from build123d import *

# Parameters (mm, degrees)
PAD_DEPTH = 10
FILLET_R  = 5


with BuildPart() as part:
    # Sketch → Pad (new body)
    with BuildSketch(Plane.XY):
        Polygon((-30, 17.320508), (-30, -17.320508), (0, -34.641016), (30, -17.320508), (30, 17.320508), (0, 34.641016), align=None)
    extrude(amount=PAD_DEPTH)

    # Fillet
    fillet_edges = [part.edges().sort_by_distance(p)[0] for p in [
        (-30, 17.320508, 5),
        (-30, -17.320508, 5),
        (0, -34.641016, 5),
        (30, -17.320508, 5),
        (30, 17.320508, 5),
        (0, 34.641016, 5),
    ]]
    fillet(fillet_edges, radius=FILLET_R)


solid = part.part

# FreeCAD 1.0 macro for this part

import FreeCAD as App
import Part
import Sketcher

V = App.Vector
Q = App.Units.Quantity


def edges_at(feature, points):
    """Names of the edges that pass closest to the given points."""
    edges = feature.Shape.Edges
    near = lambda p: min(range(len(edges)), key=lambda i: edges[i].distToShape(Part.Vertex(*p))[0])
    return sorted({f"Edge{near(p) + 1}" for p in points})

doc = App.newDocument("Part")
body = doc.addObject("PartDesign::Body", "Body")

# Sketch on XY plane
sketch1 = body.newObject("Sketcher::SketchObject", "Sketch")
sketch1.AttachmentSupport = (doc.getObject("XY_Plane"), [""])
sketch1.MapMode = "FlatFace"
sketch1.addGeometry(Part.LineSegment(V(-30, 17, 0), V(-30, -17, 0)), False)
sketch1.addGeometry(Part.LineSegment(V(-30, -17, 0), V(0, -35, 0)), False)
sketch1.addGeometry(Part.LineSegment(V(0, -35, 0), V(30, -17, 0)), False)
sketch1.addGeometry(Part.LineSegment(V(30, -17, 0), V(30, 17, 0)), False)
sketch1.addGeometry(Part.LineSegment(V(30, 17, 0), V(0, 35, 0)), False)
sketch1.addGeometry(Part.LineSegment(V(0, 35, 0), V(-30, 17, 0)), False)
sketch1.addConstraint(Sketcher.Constraint("Coincident", 0, 2, 1, 1))
sketch1.addConstraint(Sketcher.Constraint("Coincident", 1, 2, 2, 1))
sketch1.addConstraint(Sketcher.Constraint("Coincident", 2, 2, 3, 1))
sketch1.addConstraint(Sketcher.Constraint("Coincident", 3, 2, 4, 1))
sketch1.addConstraint(Sketcher.Constraint("Coincident", 4, 2, 5, 1))
sketch1.addConstraint(Sketcher.Constraint("Coincident", 5, 2, 0, 1))
sketch1.addConstraint(Sketcher.Constraint("Vertical", 0))
sketch1.addConstraint(Sketcher.Constraint("Vertical", 3))
sketch1.addConstraint(Sketcher.Constraint("Symmetric", 0, 2, 3, 2, -1, 1))
sketch1.addConstraint(Sketcher.Constraint("Symmetric", 1, 2, 4, 2, -1, 1))
sketch1.addConstraint(Sketcher.Constraint("PointOnObject", 1, 2, -2))
sketch1.addConstraint(Sketcher.Constraint("Parallel", 2, 5))
sketch1.addConstraint(Sketcher.Constraint("Horizontal", 0, 2, 2, 2))
sketch1.addConstraint(Sketcher.Constraint("Angle", 1, Q("-30 deg")))
sketch1.addConstraint(Sketcher.Constraint("DistanceX", 0, 2, -1, 1, Q("30 mm")))
sketch1.addConstraint(Sketcher.Constraint("DistanceY", 0, 2, 0, 1, Q("34.641016 mm")))
pad1 = body.newObject("PartDesign::Pad", "Pad")
pad1.Profile = sketch1
pad1.Length = 10
doc.recompute()

fillet = body.newObject("PartDesign::Fillet", "Fillet")
fillet.Base = (pad1, edges_at(pad1, [
    (-30, 17.321, 5),
    (-30, -17.321, 5),
    (0, -34.641, 5),
    (30, -17.321, 5),
    (30, 17.321, 5),
    (0, 34.641, 5),
]))
fillet.Radius = 5

doc.recompute()
